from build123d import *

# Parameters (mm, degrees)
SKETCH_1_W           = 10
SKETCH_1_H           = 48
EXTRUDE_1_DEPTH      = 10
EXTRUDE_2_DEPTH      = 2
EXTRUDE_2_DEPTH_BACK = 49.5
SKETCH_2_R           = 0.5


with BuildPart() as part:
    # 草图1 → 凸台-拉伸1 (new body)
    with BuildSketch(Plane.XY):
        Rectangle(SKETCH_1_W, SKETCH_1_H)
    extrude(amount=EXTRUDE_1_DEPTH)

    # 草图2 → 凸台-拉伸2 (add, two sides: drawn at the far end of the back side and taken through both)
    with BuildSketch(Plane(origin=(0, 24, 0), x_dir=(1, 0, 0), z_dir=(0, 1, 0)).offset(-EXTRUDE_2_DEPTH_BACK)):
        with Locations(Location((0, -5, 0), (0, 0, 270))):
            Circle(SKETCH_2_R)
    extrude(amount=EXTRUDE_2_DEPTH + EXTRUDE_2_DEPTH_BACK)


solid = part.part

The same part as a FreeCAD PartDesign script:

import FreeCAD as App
import Part
import Sketcher

V = App.Vector


def add_polygon(sketch, points):
    """Adds a closed chain of lines whose ends are joined by coincident constraints."""
    first, n = sketch.GeometryCount, len(points)
    for a, b in zip(points, points[1:] + points[:1]):
        sketch.addGeometry(Part.LineSegment(App.Vector(*a, 0), App.Vector(*b, 0)), False)
    for i in range(n):
        sketch.addConstraint(Sketcher.Constraint("Coincident", first + i, 2, first + (i + 1) % n, 1))

doc = App.newDocument("Part")
body = doc.addObject("PartDesign::Body", "Body")

sketch1 = doc.addObject("Sketcher::SketchObject", "Sketch")
body.addObject(sketch1)
sketch1.AttachmentSupport = (doc.XY_Plane, [""])
sketch1.MapMode = "FlatFace"
add_polygon(sketch1, [(-5, 24), (-5, -24), (5, -24), (5, 24)])
sketch1.addConstraint(Sketcher.Constraint("Vertical", 0))
sketch1.addConstraint(Sketcher.Constraint("Horizontal", 1))
sketch1.addConstraint(Sketcher.Constraint("Vertical", 2))
sketch1.addConstraint(Sketcher.Constraint("Horizontal", 3))
sketch1.addConstraint(Sketcher.Constraint("Symmetric", 0, 2, 2, 2, -1, 1))
sketch1.addConstraint(Sketcher.Constraint("DistanceX", 1, 1, 1, 2, 10.0))
sketch1.addConstraint(Sketcher.Constraint("DistanceY", 0, 2, 0, 1, 48.0))
pad1 = doc.addObject("PartDesign::Pad", "Pad")
body.addObject(pad1)
pad1.Profile = sketch1
pad1.Length = 10

sketch2 = doc.addObject("Sketcher::SketchObject", "Sketch001")
body.addObject(sketch2)
sketch2.AttachmentSupport = (doc.XZ_Plane, [""])
sketch2.MapMode = "FlatFace"
sketch2.AttachmentOffset = App.Placement(V(0, 0, -24), App.Rotation())
sketch2.addGeometry(Part.Circle(V(0, 5, 0), V(0, 0, 1), 0.5), False)
sketch2.addConstraint(Sketcher.Constraint("PointOnObject", 0, 3, -2))
sketch2.addConstraint(Sketcher.Constraint("Diameter", 0, 1.0))
sketch2.addConstraint(Sketcher.Constraint("DistanceY", -1, 1, 0, 3, 5.0))
pad2 = doc.addObject("PartDesign::Pad", "Pad001")
body.addObject(pad2)
pad2.Profile = sketch2
pad2.Type = "TwoLengths"
pad2.Length = 2
pad2.Length2 = 49.5
pad2.Reversed = True

doc.recompute()
